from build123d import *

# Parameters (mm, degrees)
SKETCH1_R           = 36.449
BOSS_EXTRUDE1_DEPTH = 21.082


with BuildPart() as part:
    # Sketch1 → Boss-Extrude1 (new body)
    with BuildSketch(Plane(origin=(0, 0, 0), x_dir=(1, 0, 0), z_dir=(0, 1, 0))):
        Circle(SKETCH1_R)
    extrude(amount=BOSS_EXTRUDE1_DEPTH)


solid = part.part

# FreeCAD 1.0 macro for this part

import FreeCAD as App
import Part
import Sketcher

V = App.Vector
Q = App.Units.Quantity

doc = App.newDocument("Part")
body = doc.addObject("PartDesign::Body", "Body")

sketch1 = body.newObject("Sketcher::SketchObject", "Sketch")
sketch1.AttachmentSupport = (doc.getObject("XZ_Plane"), [""])
sketch1.MapMode = "FlatFace"
sketch1.addGeometry(Part.Circle(V(0, 0, 0), V(0, 0, 1), 36.449), False)
sketch1.addConstraint(Sketcher.Constraint("Coincident", 0, 3, -1, 1))
sketch1.addConstraint(Sketcher.Constraint("Diameter", 0, Q("2.87 in")))
pad1 = body.newObject("PartDesign::Pad", "Pad")
pad1.Profile = sketch1
pad1.Length = Q("0.83 in")
pad1.Reversed = True

doc.recompute()
